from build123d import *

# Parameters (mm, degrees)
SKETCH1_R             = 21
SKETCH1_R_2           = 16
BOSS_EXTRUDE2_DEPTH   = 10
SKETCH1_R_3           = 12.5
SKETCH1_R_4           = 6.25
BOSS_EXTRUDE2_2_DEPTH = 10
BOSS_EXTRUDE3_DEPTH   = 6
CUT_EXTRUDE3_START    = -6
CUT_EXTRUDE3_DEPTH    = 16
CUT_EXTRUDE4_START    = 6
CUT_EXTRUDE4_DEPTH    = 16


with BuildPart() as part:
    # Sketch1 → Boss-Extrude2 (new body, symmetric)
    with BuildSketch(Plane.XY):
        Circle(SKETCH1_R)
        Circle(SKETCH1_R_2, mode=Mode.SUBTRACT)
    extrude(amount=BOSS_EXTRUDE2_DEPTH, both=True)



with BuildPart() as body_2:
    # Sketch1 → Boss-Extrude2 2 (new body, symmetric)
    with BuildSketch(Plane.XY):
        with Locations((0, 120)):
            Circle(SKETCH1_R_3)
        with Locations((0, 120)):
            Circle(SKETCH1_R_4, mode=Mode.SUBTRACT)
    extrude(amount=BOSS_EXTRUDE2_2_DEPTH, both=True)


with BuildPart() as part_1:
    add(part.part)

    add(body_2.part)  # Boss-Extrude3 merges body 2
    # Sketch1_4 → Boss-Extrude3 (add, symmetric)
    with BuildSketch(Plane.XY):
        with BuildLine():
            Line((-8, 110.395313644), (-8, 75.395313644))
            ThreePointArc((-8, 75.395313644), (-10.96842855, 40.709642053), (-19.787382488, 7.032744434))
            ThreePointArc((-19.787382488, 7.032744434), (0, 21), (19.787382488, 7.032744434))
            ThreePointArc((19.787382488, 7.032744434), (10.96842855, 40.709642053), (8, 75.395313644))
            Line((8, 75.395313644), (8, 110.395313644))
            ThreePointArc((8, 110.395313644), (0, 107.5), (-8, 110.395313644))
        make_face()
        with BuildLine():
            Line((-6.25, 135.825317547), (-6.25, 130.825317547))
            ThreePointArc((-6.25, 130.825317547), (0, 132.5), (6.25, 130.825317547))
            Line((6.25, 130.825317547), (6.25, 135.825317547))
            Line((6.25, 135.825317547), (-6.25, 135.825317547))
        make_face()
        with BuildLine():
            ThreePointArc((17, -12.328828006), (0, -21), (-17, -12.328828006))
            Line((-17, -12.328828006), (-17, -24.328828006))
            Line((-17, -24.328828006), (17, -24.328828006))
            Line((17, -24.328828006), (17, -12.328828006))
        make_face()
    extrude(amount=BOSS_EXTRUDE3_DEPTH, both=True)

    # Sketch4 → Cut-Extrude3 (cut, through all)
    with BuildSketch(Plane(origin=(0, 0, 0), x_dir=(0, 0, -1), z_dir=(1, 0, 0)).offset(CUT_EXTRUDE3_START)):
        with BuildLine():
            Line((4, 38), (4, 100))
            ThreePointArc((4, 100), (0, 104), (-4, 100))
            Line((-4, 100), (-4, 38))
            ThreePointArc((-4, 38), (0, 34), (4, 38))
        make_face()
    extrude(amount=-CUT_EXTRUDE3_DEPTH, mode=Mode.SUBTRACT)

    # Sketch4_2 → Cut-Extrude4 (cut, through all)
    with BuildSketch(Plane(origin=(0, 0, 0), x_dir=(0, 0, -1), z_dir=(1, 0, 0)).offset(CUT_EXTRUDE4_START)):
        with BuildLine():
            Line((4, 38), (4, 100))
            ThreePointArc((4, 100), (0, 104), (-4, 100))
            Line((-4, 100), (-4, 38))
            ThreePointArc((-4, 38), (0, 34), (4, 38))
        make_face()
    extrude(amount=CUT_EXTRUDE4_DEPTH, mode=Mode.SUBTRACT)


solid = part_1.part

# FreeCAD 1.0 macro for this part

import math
import FreeCAD as App
import Part
import Sketcher

doc = App.newDocument("Part")
body = doc.addObject("PartDesign::Body", "Body")

# Sketch on XY plane
sketch1 = body.newObject("Sketcher::SketchObject", "Sketch")
sketch1.AttachmentSupport = (doc.getObject("XY_Plane"), [""])
sketch1.MapMode = "FlatFace"
sketch1.addGeometry(Part.Circle(App.Vector(0, 0, 0), App.Vector(0, 0, 1), 21), False)
sketch1.addGeometry(Part.Circle(App.Vector(0, 0, 0), App.Vector(0, 0, 1), 16), False)
sketch1.addConstraint(Sketcher.Constraint("Coincident", 0, 3, -1, 1))
sketch1.addConstraint(Sketcher.Constraint("Coincident", 1, 3, -1, 1))
sketch1.addConstraint(Sketcher.Constraint("Diameter", 0, 42.0))
sketch1.addConstraint(Sketcher.Constraint("Diameter", 1, 32.0))
pad1 = body.newObject("PartDesign::Pad", "Pad")
pad1.Profile = sketch1
pad1.Length = 20
pad1.Midplane = True
body2 = doc.addObject("PartDesign::Body", "Body001")

# Sketch on XY plane
sketch2 = body2.newObject("Sketcher::SketchObject", "Sketch001")
sketch2.AttachmentSupport = (doc.getObject("XY_Plane001"), [""])
sketch2.MapMode = "FlatFace"
sketch2.addGeometry(Part.Circle(App.Vector(0, 120, 0), App.Vector(0, 0, 1), 12.5), False)
sketch2.addGeometry(Part.Circle(App.Vector(0, 120, 0), App.Vector(0, 0, 1), 6.25), False)
sketch2.addConstraint(Sketcher.Constraint("Coincident", 1, 3, 0, 3))
sketch2.addConstraint(Sketcher.Constraint("PointOnObject", 0, 3, -2))
sketch2.addConstraint(Sketcher.Constraint("Diameter", 0, 25.0))
sketch2.addConstraint(Sketcher.Constraint("Diameter", 1, 12.5))
sketch2.addConstraint(Sketcher.Constraint("DistanceY", -1, 1, 0, 3, 120.0))
pad2 = body2.newObject("PartDesign::Pad", "Pad001")
pad2.Profile = sketch2
pad2.Length = 20
pad2.Midplane = True
body.AllowCompound = True
doc.recompute()

boolean = body.newObject("PartDesign::Boolean", "Boolean")
boolean.Type = "Fuse"
boolean.addObjects([body2])

# Sketch on XY plane
sketch3 = body.newObject("Sketcher::SketchObject", "Sketch002")
sketch3.AttachmentSupport = (doc.getObject("XY_Plane"), [""])
sketch3.MapMode = "FlatFace"
sketch3.addGeometry(Part.LineSegment(App.Vector(-8, 110.395314, 0), App.Vector(-8, 75.395314, 0)), False)
sketch3.addGeometry(Part.ArcOfCircle(Part.Circle(App.Vector(-212.13282, 75.395314, 0), App.Vector(0, 0, 1), 204.13282), math.radians(-19.566007), math.radians(0)), False)
sketch3.addGeometry(Part.ArcOfCircle(Part.Circle(App.Vector(0, 0, 0), App.Vector(0, 0, 1), 21), math.radians(19.566007), math.radians(160.433993)), False)
sketch3.addGeometry(Part.ArcOfCircle(Part.Circle(App.Vector(212.13282, 75.395314, 0), App.Vector(0, 0, 1), 204.13282), math.radians(180), math.radians(199.566007)), False)
sketch3.addGeometry(Part.LineSegment(App.Vector(8, 75.395314, 0), App.Vector(8, 110.395314, 0)), False)
sketch3.addGeometry(Part.ArcOfCircle(Part.Circle(App.Vector(0, 120, 0), App.Vector(0, 0, 1), 12.5), math.radians(-129.791819), math.radians(-50.208181)), False)
sketch3.addGeometry(Part.LineSegment(App.Vector(-6.25, 135.825318, 0), App.Vector(-6.25, 130.825318, 0)), False)
sketch3.addGeometry(Part.ArcOfCircle(Part.Circle(App.Vector(0, 120, 0), App.Vector(0, 0, 1), 12.5), math.radians(60), math.radians(120)), False)
sketch3.addGeometry(Part.LineSegment(App.Vector(6.25, 130.825318, 0), App.Vector(6.25, 135.825318, 0)), False)
sketch3.addGeometry(Part.LineSegment(App.Vector(6.25, 135.825318, 0), App.Vector(-6.25, 135.825318, 0)), False)
sketch3.addGeometry(Part.ArcOfCircle(Part.Circle(App.Vector(0, 0, 0), App.Vector(0, 0, 1), 21), math.radians(-144.049432), math.radians(-35.950568)), False)
sketch3.addGeometry(Part.LineSegment(App.Vector(-17, -12.328828, 0), App.Vector(-17, -24.328828, 0)), False)
sketch3.addGeometry(Part.LineSegment(App.Vector(-17, -24.328828, 0), App.Vector(17, -24.328828, 0)), False)
sketch3.addGeometry(Part.LineSegment(App.Vector(17, -24.328828, 0), App.Vector(17, -12.328828, 0)), False)
sketch3.addConstraint(Sketcher.Constraint("Tangent", 0, 2, 1, 2))
sketch3.addConstraint(Sketcher.Constraint("Tangent", 1, 1, 2, 2))
sketch3.addConstraint(Sketcher.Constraint("Tangent", 2, 1, 3, 2))
sketch3.addConstraint(Sketcher.Constraint("Tangent", 3, 1, 4, 1))
sketch3.addConstraint(Sketcher.Constraint("Coincident", 4, 2, 5, 2))
sketch3.addConstraint(Sketcher.Constraint("Coincident", 5, 1, 0, 1))
sketch3.addConstraint(Sketcher.Constraint("Coincident", 6, 2, 7, 2))
sketch3.addConstraint(Sketcher.Constraint("Coincident", 7, 1, 8, 1))
sketch3.addConstraint(Sketcher.Constraint("Coincident", 8, 2, 9, 1))
sketch3.addConstraint(Sketcher.Constraint("Coincident", 9, 2, 6, 1))
sketch3.addConstraint(Sketcher.Constraint("Coincident", 10, 1, 11, 1))
sketch3.addConstraint(Sketcher.Constraint("Coincident", 11, 2, 12, 1))
sketch3.addConstraint(Sketcher.Constraint("Coincident", 12, 2, 13, 1))
sketch3.addConstraint(Sketcher.Constraint("Coincident", 13, 2, 10, 2))
sketch3.addConstraint(Sketcher.Constraint("Vertical", 0))
sketch3.addConstraint(Sketcher.Constraint("Vertical", 4))
sketch3.addConstraint(Sketcher.Constraint("Vertical", 6))
sketch3.addConstraint(Sketcher.Constraint("Vertical", 8))
sketch3.addConstraint(Sketcher.Constraint("Horizontal", 9))
sketch3.addConstraint(Sketcher.Constraint("Vertical", 11))
sketch3.addConstraint(Sketcher.Constraint("Horizontal", 12))
sketch3.addConstraint(Sketcher.Constraint("Vertical", 13))
sketch3.addConstraint(Sketcher.Constraint("Coincident", 2, 3, -1, 1))
sketch3.addConstraint(Sketcher.Constraint("Coincident", 10, 3, -1, 1))
sketch3.addConstraint(Sketcher.Constraint("Coincident", 7, 3, 5, 3))
sketch3.addConstraint(Sketcher.Constraint("Equal", 1, 3))
sketch3.addConstraint(Sketcher.Constraint("Equal", 5, 7))
sketch3.addConstraint(Sketcher.Constraint("Equal", 2, 10))
sketch3.addConstraint(Sketcher.Constraint("Symmetric", 4, 2, 5, 1, -2))
sketch3.addConstraint(Sketcher.Constraint("Horizontal", 6, 2, 7, 1))
sketch3.addConstraint(Sketcher.Constraint("Horizontal", 10, 1, 13, 2))
sketch3.addConstraint(Sketcher.Constraint("Radius", 2, 21.0))
sketch3.addConstraint(Sketcher.Constraint("Radius", 5, 12.5))
sketch3.addConstraint(Sketcher.Constraint("DistanceX", 12, 1, 12, 2, 34.0))
sketch3.addConstraint(Sketcher.Constraint("DistanceY", 0, 2, 0, 1, 35.0))
sketch3.addConstraint(Sketcher.Constraint("DistanceY", 6, 2, 6, 1, 5.0))
sketch3.addConstraint(Sketcher.Constraint("DistanceY", 11, 2, 11, 1, 12.0))
sketch3.addConstraint(Sketcher.Constraint("DistanceX", 9, 2, 9, 1, 12.5))
sketch3.addConstraint(Sketcher.Constraint("DistanceY", -1, 1, 5, 3, 120.0))
sketch3.addConstraint(Sketcher.Constraint("DistanceX", 0, 2, -1, 1, 8.0))
pad3 = body.newObject("PartDesign::Pad", "Pad002")
pad3.Profile = sketch3
pad3.Length = 12
pad3.Midplane = True

# Sketch on YZ plane
sketch4 = body.newObject("Sketcher::SketchObject", "Sketch003")
sketch4.AttachmentSupport = (doc.getObject("YZ_Plane"), [""])
sketch4.MapMode = "FlatFace"
sketch4.AttachmentOffset = App.Placement(App.Vector(0, 0, -6), App.Rotation())
sketch4.addGeometry(Part.LineSegment(App.Vector(38, -4, 0), App.Vector(100, -4, 0)), False)
sketch4.addGeometry(Part.ArcOfCircle(Part.Circle(App.Vector(100, 0, 0), App.Vector(0, 0, 1), 4), math.radians(-90), math.radians(90)), False)
sketch4.addGeometry(Part.LineSegment(App.Vector(100, 4, 0), App.Vector(38, 4, 0)), False)
sketch4.addGeometry(Part.ArcOfCircle(Part.Circle(App.Vector(38, 0, 0), App.Vector(0, 0, 1), 4), math.radians(90), math.radians(270)), False)
sketch4.addConstraint(Sketcher.Constraint("Tangent", 0, 2, 1, 1))
sketch4.addConstraint(Sketcher.Constraint("Tangent", 1, 2, 2, 1))
sketch4.addConstraint(Sketcher.Constraint("Tangent", 2, 2, 3, 1))
sketch4.addConstraint(Sketcher.Constraint("Tangent", 3, 2, 0, 1))
sketch4.addConstraint(Sketcher.Constraint("Horizontal", 0))
sketch4.addConstraint(Sketcher.Constraint("Horizontal", 2))
sketch4.addConstraint(Sketcher.Constraint("PointOnObject", 1, 3, -1))
sketch4.addConstraint(Sketcher.Constraint("Radius", 1, 4.0))
sketch4.addConstraint(Sketcher.Constraint("DistanceX", 0, 1, 0, 2, 62.0))
sketch4.addConstraint(Sketcher.Constraint("DistanceX", -1, 1, 1, 3, 100.0))
pocket1 = body.newObject("PartDesign::Pocket", "Pocket")
pocket1.Profile = sketch4
pocket1.Type = "ThroughAll"

# Sketch on YZ plane
sketch5 = body.newObject("Sketcher::SketchObject", "Sketch004")
sketch5.AttachmentSupport = (doc.getObject("YZ_Plane"), [""])
sketch5.MapMode = "FlatFace"
sketch5.AttachmentOffset = App.Placement(App.Vector(0, 0, 6), App.Rotation())
sketch5.addGeometry(Part.LineSegment(App.Vector(38, -4, 0), App.Vector(100, -4, 0)), False)
sketch5.addGeometry(Part.ArcOfCircle(Part.Circle(App.Vector(100, 0, 0), App.Vector(0, 0, 1), 4), math.radians(-90), math.radians(90)), False)
sketch5.addGeometry(Part.LineSegment(App.Vector(100, 4, 0), App.Vector(38, 4, 0)), False)
sketch5.addGeometry(Part.ArcOfCircle(Part.Circle(App.Vector(38, 0, 0), App.Vector(0, 0, 1), 4), math.radians(90), math.radians(270)), False)
sketch5.addConstraint(Sketcher.Constraint("Tangent", 0, 2, 1, 1))
sketch5.addConstraint(Sketcher.Constraint("Tangent", 1, 2, 2, 1))
sketch5.addConstraint(Sketcher.Constraint("Tangent", 2, 2, 3, 1))
sketch5.addConstraint(Sketcher.Constraint("Tangent", 3, 2, 0, 1))
sketch5.addConstraint(Sketcher.Constraint("Horizontal", 0))
sketch5.addConstraint(Sketcher.Constraint("Horizontal", 2))
sketch5.addConstraint(Sketcher.Constraint("PointOnObject", 1, 3, -1))
sketch5.addConstraint(Sketcher.Constraint("Radius", 1, 4.0))
sketch5.addConstraint(Sketcher.Constraint("DistanceX", 0, 1, 0, 2, 62.0))
sketch5.addConstraint(Sketcher.Constraint("DistanceX", -1, 1, 1, 3, 100.0))
pocket2 = body.newObject("PartDesign::Pocket", "Pocket001")
pocket2.Profile = sketch5
pocket2.Type = "ThroughAll"
pocket2.Reversed = True

doc.recompute()
